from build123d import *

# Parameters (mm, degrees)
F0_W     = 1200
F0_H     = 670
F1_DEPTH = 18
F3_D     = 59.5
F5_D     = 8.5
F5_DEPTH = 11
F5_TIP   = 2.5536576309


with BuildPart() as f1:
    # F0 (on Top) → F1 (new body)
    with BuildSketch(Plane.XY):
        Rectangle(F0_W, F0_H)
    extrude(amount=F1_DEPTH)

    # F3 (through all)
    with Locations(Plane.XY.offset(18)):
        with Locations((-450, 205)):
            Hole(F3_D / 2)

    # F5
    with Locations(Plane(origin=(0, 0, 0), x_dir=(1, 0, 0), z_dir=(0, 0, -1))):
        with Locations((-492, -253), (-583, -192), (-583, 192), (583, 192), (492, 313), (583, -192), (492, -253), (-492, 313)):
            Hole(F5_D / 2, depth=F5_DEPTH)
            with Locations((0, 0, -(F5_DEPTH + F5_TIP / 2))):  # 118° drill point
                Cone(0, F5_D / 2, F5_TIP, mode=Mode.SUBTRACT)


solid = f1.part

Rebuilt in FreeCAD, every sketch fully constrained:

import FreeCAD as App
import Part
import Sketcher

V = App.Vector
Q = App.Units.Quantity

doc = App.newDocument("Part")
params = doc.addObject("Spreadsheet::Sheet", "Params")
for row, (alias, value) in enumerate([
    ("sketch1_width", "1200 mm"),
    ("sketch1_height", "670 mm"),
    ("pad1_length", "18 mm"),
    ("sketch2_diameter", "59.5 mm"),
    ("hole_diameter", "59.5 mm"),
    ("sketch3_diameter", "8.5 mm"),
    ("hole2_diameter", "8.5 mm"),
    ("hole2_depth", "11 mm"),
], start=1):
    params.set(f"A{row}", alias)
    params.set(f"B{row}", "=" + value)
    params.setAlias(f"B{row}", alias)

body = doc.addObject("PartDesign::Body", "Body")

sketch1 = doc.addObject("Sketcher::SketchObject", "Sketch")
body.addObject(sketch1)
sketch1.AttachmentSupport = (doc.XY_Plane, [""])
sketch1.MapMode = "FlatFace"
sketch1.addGeometry(Part.LineSegment(V(-600, 335, 0), V(-600, -335, 0)), False)
sketch1.addGeometry(Part.LineSegment(V(-600, -335, 0), V(600, -335, 0)), False)
sketch1.addGeometry(Part.LineSegment(V(600, -335, 0), V(600, 335, 0)), False)
sketch1.addGeometry(Part.LineSegment(V(600, 335, 0), V(-600, 335, 0)), False)
sketch1.addConstraint(Sketcher.Constraint("Coincident", 0, 2, 1, 1))
sketch1.addConstraint(Sketcher.Constraint("Coincident", 1, 2, 2, 1))
sketch1.addConstraint(Sketcher.Constraint("Coincident", 2, 2, 3, 1))
sketch1.addConstraint(Sketcher.Constraint("Coincident", 3, 2, 0, 1))
sketch1.addConstraint(Sketcher.Constraint("Vertical", 0))
sketch1.addConstraint(Sketcher.Constraint("Horizontal", 1))
sketch1.addConstraint(Sketcher.Constraint("Vertical", 2))
sketch1.addConstraint(Sketcher.Constraint("Horizontal", 3))
sketch1.addConstraint(Sketcher.Constraint("Symmetric", 0, 2, 2, 2, -1, 1))
sketch1.addConstraint(Sketcher.Constraint("DistanceX", 1, 1, 1, 2, Q("1200 mm")))
sketch1.addConstraint(Sketcher.Constraint("DistanceY", 0, 2, 0, 1, Q("670 mm")))
sketch1.setExpression("Constraints[9]", "Params.sketch1_width")
sketch1.setExpression("Constraints[10]", "Params.sketch1_height")
pad1 = doc.addObject("PartDesign::Pad", "Pad")
body.addObject(pad1)
pad1.Profile = sketch1
pad1.setExpression("Length", "Params.pad1_length")

sketch2 = doc.addObject("Sketcher::SketchObject", "Sketch001")
body.addObject(sketch2)
sketch2.AttachmentSupport = (doc.XY_Plane, [""])
sketch2.MapMode = "FlatFace"
sketch2.AttachmentOffset = App.Placement(V(0, 0, 18), App.Rotation())
sketch2.addGeometry(Part.Circle(V(-450, 205, 0), V(0, 0, 1), 30), False)
sketch2.addConstraint(Sketcher.Constraint("Diameter", 0, Q("59.5 mm")))
sketch2.addConstraint(Sketcher.Constraint("DistanceX", 0, 3, -1, 1, Q("450 mm")))
sketch2.addConstraint(Sketcher.Constraint("DistanceY", -1, 1, 0, 3, Q("205 mm")))
sketch2.setExpression("Constraints[0]", "Params.sketch2_diameter")
doc.recompute()
hole = doc.addObject("PartDesign::Hole", "Hole")
body.addObject(hole)
hole.Profile = sketch2
hole.ThreadType = "None"
hole.setExpression("Diameter", "Params.hole_diameter")
hole.DepthType = "ThroughAll"

sketch3 = doc.addObject("Sketcher::SketchObject", "Sketch002")
body.addObject(sketch3)
sketch3.AttachmentSupport = (doc.XY_Plane, [""])
sketch3.MapMode = "FlatFace"
sketch3.addGeometry(Part.Circle(V(-492, 253, 0), V(0, 0, 1), 4.2), False)
sketch3.addGeometry(Part.Circle(V(-583, 192, 0), V(0, 0, 1), 4.2), False)
sketch3.addGeometry(Part.Circle(V(-583, -192, 0), V(0, 0, 1), 4.2), False)
sketch3.addGeometry(Part.Circle(V(583, -192, 0), V(0, 0, 1), 4.2), False)
sketch3.addGeometry(Part.Circle(V(492, -313, 0), V(0, 0, 1), 4.2), False)
sketch3.addGeometry(Part.Circle(V(583, 192, 0), V(0, 0, 1), 4.2), False)
sketch3.addGeometry(Part.Circle(V(492, 253, 0), V(0, 0, 1), 4.2), False)
sketch3.addGeometry(Part.Circle(V(-492, -313, 0), V(0, 0, 1), 4.2), False)
sketch3.addConstraint(Sketcher.Constraint("Equal", 0, 1))
sketch3.addConstraint(Sketcher.Constraint("Equal", 1, 2))
sketch3.addConstraint(Sketcher.Constraint("Equal", 2, 3))
sketch3.addConstraint(Sketcher.Constraint("Equal", 3, 4))
sketch3.addConstraint(Sketcher.Constraint("Equal", 4, 5))
sketch3.addConstraint(Sketcher.Constraint("Equal", 5, 6))
sketch3.addConstraint(Sketcher.Constraint("Equal", 6, 7))
sketch3.addConstraint(Sketcher.Constraint("Symmetric", 1, 3, 3, 3, -1, 1))
sketch3.addConstraint(Sketcher.Constraint("Symmetric", 2, 3, 5, 3, -1, 1))
sketch3.addConstraint(Sketcher.Constraint("Symmetric", 2, 3, 3, 3, -2))
sketch3.addConstraint(Sketcher.Constraint("Symmetric", 0, 3, 6, 3, -2))
sketch3.addConstraint(Sketcher.Constraint("Symmetric", 4, 3, 7, 3, -2))
sketch3.addConstraint(Sketcher.Constraint("Vertical", 4, 3, 6, 3))
sketch3.addConstraint(Sketcher.Constraint("Diameter", 0, Q("8.5 mm")))
sketch3.addConstraint(Sketcher.Constraint("DistanceX", 0, 3, -1, 1, Q("492 mm")))
sketch3.addConstraint(Sketcher.Constraint("DistanceY", -1, 1, 0, 3, Q("253 mm")))
sketch3.addConstraint(Sketcher.Constraint("DistanceX", 1, 3, -1, 1, Q("583 mm")))
sketch3.addConstraint(Sketcher.Constraint("DistanceY", -1, 1, 1, 3, Q("192 mm")))
sketch3.addConstraint(Sketcher.Constraint("DistanceY", 4, 3, -1, 1, Q("313 mm")))
sketch3.setExpression("Constraints[13]", "Params.sketch3_diameter")
doc.recompute()
hole2 = doc.addObject("PartDesign::Hole", "Hole001")
body.addObject(hole2)
hole2.Profile = sketch3
hole2.ThreadType = "None"
hole2.setExpression("Diameter", "Params.hole2_diameter")
hole2.DepthType = "Dimension"
hole2.setExpression("Depth", "Params.hole2_depth")
hole2.DrillPoint = "Angled"
hole2.DrillPointAngle = 118
hole2.Reversed = True

doc.recompute()
